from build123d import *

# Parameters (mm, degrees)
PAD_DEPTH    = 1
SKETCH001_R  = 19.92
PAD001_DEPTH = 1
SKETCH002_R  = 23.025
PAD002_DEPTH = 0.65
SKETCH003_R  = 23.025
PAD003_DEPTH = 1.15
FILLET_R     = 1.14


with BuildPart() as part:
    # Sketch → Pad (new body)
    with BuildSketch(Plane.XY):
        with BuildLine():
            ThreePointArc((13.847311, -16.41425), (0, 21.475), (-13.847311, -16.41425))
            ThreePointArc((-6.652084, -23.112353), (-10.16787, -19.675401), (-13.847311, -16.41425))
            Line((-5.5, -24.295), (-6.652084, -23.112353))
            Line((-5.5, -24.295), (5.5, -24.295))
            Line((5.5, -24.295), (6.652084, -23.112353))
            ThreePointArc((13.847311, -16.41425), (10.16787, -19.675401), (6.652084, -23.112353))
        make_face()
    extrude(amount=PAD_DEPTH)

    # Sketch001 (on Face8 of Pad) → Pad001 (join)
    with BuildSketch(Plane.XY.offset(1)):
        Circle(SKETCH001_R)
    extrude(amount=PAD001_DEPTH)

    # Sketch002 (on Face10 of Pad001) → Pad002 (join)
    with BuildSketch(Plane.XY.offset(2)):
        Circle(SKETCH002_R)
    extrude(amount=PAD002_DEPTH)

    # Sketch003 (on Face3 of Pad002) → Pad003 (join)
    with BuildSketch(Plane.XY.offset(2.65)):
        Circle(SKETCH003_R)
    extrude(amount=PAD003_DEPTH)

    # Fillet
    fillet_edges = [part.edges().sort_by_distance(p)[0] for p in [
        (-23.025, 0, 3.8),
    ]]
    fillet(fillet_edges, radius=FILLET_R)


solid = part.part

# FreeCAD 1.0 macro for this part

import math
import FreeCAD as App
import Part
import Sketcher
Q = App.Units.Quantity


def edges_at(feature, points):
    """Names of the edges that pass closest to the given points."""
    edges = feature.Shape.Edges
    near = lambda p: min(range(len(edges)), key=lambda i: edges[i].distToShape(Part.Vertex(*p))[0])
    return sorted({f"Edge{near(p) + 1}" for p in points})

doc = App.newDocument("Part")
body = doc.addObject("PartDesign::Body", "Body")

sketch1 = body.newObject("Sketcher::SketchObject", "Sketch")
sketch1.AttachmentSupport = (doc.getObject("XY_Plane"), [""])
sketch1.MapMode = "FlatFace"
sketch1.addGeometry([
    Part.ArcOfCircle(Part.Circle(App.Vector(0, 0, 0), App.Vector(0, 0, 1), 21.475), math.radians(-49.848512), math.radians(229.848512)),
    Part.ArcOfCircle(Part.Circle(App.Vector(-78.744145, -93.341312, 0), App.Vector(0, 0, 1), 100.644781), math.radians(44.249993), math.radians(49.848515)),
    Part.LineSegment(App.Vector(-6.652084, -23.112353, 0), App.Vector(-5.5, -24.295, 0)),
    Part.LineSegment(App.Vector(-5.5, -24.295, 0), App.Vector(5.5, -24.295, 0)),
    Part.LineSegment(App.Vector(5.5, -24.295, 0), App.Vector(6.652084, -23.112353, 0)),
    Part.ArcOfCircle(Part.Circle(App.Vector(78.744145, -93.341312, 0), App.Vector(0, 0, 1), 100.644781), math.radians(130.151485), math.radians(135.750007)),
], False)
sketch1.addConstraint([
    Sketcher.Constraint("Coincident", 0, 2, 1, 2),
    Sketcher.Constraint("Coincident", 1, 1, 2, 1),
    Sketcher.Constraint("Coincident", 2, 2, 3, 1),
    Sketcher.Constraint("Coincident", 3, 2, 4, 1),
    Sketcher.Constraint("Coincident", 4, 2, 5, 2),
    Sketcher.Constraint("Coincident", 5, 1, 0, 1),
    Sketcher.Constraint("Horizontal", 3),
    Sketcher.Constraint("Coincident", 0, 3, -1, 1),
    Sketcher.Constraint("DistanceX", 3, 1, 3, 2, Q("11 mm")),
    Sketcher.Constraint("Radius", 0, Q("21.475 mm")),
    Sketcher.Constraint("DistanceX", 2, 2, -1, 1, Q("5.5 mm")),
    Sketcher.Constraint("Radius", 1, Q("100.644781 mm")),
    Sketcher.Constraint("Radius", 5, Q("100.644781 mm")),
    Sketcher.Constraint("DistanceY", 2, 2, -1, 1, Q("24.295 mm")),
    Sketcher.Constraint("DistanceX", 0, 2, -1, 1, Q("13.847311 mm")),
    Sketcher.Constraint("DistanceX", -1, 1, 5, 1, Q("13.847311 mm")),
    Sketcher.Constraint("DistanceX", 1, 3, 5, 3, Q("157.488289 mm")),
    Sketcher.Constraint("DistanceX", 1, 3, 1, 1, Q("72.092061 mm")),
    Sketcher.Constraint("DistanceY", 5, 3, 1, 1, Q("70.228959 mm")),
    Sketcher.Constraint("DistanceX", 1, 1, 4, 2, Q("13.304168 mm")),
])
pad1 = body.newObject("PartDesign::Pad", "Pad")
pad1.Profile = sketch1
pad1.Length = 1

sketch2 = body.newObject("Sketcher::SketchObject", "Sketch001")
sketch2.AttachmentSupport = (doc.getObject("XY_Plane"), [""])
sketch2.MapMode = "FlatFace"
sketch2.AttachmentOffset = App.Placement(App.Vector(0, 0, 1), App.Rotation())
sketch2.addGeometry(Part.Circle(App.Vector(0, 0, 0), App.Vector(0, 0, 1), 19.92), False)
sketch2.addConstraint([
    Sketcher.Constraint("Coincident", 0, 3, -1, 1),
    Sketcher.Constraint("Diameter", 0, Q("39.84 mm")),
])
pad2 = body.newObject("PartDesign::Pad", "Pad001")
pad2.Profile = sketch2
pad2.Length = 1

sketch3 = body.newObject("Sketcher::SketchObject", "Sketch002")
sketch3.AttachmentSupport = (doc.getObject("XY_Plane"), [""])
sketch3.MapMode = "FlatFace"
sketch3.AttachmentOffset = App.Placement(App.Vector(0, 0, 2), App.Rotation())
sketch3.addGeometry(Part.Circle(App.Vector(0, 0, 0), App.Vector(0, 0, 1), 23.025), False)
sketch3.addConstraint([
    Sketcher.Constraint("Coincident", 0, 3, -1, 1),
    Sketcher.Constraint("Diameter", 0, Q("46.05 mm")),
])
pad3 = body.newObject("PartDesign::Pad", "Pad002")
pad3.Profile = sketch3
pad3.Length = 0.65

sketch4 = body.newObject("Sketcher::SketchObject", "Sketch003")
sketch4.AttachmentSupport = (doc.getObject("XY_Plane"), [""])
sketch4.MapMode = "FlatFace"
sketch4.AttachmentOffset = App.Placement(App.Vector(0, 0, 2.65), App.Rotation())
sketch4.addGeometry(Part.Circle(App.Vector(0, 0, 0), App.Vector(0, 0, 1), 23.025), False)
sketch4.addConstraint([
    Sketcher.Constraint("Coincident", 0, 3, -1, 1),
    Sketcher.Constraint("Diameter", 0, Q("46.05 mm")),
])
pad4 = body.newObject("PartDesign::Pad", "Pad003")
pad4.Profile = sketch4
pad4.Length = 1.15
doc.recompute()

fillet = body.newObject("PartDesign::Fillet", "Fillet")
fillet.Base = (pad4, edges_at(pad4, [(-23.025, 0, 3.8)]))
fillet.Radius = 1.14

doc.recompute()
